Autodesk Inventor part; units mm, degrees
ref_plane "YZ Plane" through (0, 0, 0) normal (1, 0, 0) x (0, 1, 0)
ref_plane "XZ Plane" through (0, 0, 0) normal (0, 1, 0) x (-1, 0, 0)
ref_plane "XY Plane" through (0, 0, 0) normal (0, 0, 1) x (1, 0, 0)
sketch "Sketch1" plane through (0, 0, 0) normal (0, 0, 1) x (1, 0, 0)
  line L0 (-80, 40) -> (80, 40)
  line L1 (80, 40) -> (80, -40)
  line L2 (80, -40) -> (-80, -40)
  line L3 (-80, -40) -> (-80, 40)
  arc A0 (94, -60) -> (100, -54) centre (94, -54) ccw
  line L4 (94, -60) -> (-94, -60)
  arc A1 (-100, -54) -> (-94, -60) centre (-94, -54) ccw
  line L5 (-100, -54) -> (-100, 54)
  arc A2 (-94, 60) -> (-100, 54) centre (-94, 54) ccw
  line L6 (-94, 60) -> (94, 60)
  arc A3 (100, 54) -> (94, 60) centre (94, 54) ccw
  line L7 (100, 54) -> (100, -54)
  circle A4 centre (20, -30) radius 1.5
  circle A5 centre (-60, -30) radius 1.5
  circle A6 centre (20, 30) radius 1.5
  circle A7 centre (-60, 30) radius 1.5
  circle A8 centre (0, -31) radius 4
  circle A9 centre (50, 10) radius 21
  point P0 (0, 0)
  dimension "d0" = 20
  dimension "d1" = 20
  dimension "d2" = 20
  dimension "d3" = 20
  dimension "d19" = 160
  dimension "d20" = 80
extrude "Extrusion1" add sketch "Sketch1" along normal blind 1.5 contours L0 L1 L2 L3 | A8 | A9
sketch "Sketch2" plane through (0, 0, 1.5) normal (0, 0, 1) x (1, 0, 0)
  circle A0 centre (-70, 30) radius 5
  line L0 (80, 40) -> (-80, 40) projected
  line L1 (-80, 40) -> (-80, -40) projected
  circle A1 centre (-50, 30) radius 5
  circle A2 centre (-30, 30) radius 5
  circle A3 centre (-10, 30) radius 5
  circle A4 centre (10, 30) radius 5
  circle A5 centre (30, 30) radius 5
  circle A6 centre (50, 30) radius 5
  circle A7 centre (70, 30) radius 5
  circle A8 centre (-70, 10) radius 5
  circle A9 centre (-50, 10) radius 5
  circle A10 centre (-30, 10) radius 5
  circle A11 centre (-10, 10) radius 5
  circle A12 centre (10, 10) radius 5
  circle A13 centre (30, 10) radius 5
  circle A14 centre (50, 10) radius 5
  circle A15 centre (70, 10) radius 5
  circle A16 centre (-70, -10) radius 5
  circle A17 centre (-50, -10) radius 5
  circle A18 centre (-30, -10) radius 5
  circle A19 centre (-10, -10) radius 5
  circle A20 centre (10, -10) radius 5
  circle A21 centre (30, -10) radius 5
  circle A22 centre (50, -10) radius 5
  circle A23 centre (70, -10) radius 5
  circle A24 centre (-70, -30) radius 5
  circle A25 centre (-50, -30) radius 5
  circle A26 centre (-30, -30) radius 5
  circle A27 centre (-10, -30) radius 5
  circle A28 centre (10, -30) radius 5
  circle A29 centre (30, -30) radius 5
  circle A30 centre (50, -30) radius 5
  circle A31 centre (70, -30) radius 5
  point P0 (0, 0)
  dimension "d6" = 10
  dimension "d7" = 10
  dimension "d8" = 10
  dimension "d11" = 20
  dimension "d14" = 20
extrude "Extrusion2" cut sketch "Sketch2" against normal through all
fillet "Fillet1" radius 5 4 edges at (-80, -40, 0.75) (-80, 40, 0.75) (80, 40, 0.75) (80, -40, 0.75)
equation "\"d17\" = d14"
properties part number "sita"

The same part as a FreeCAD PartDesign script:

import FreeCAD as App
import Part
import Sketcher
Q = App.Units.Quantity


def edges_at(feature, points):
    """Names of the edges that pass closest to the given points."""
    edges = feature.Shape.Edges
    near = lambda p: min(range(len(edges)), key=lambda i: edges[i].distToShape(Part.Vertex(*p))[0])
    return sorted({f"Edge{near(p) + 1}" for p in points})

doc = App.newDocument("Part")
body = doc.addObject("PartDesign::Body", "Body")

# Sketch on XY plane
sketch1 = body.newObject("Sketcher::SketchObject", "Sketch")
sketch1.AttachmentSupport = (doc.getObject("XY_Plane"), [""])
sketch1.MapMode = "FlatFace"
sketch1.addGeometry([
    Part.LineSegment(App.Vector(80, 40, 0), App.Vector(-80, 40, 0)),  # 0
    Part.LineSegment(App.Vector(-80, 40, 0), App.Vector(-80, -40, 0)),  # 1
    Part.LineSegment(App.Vector(-80, -40, 0), App.Vector(80, -40, 0)),  # 2
    Part.LineSegment(App.Vector(80, -40, 0), App.Vector(80, 40, 0)),  # 3
    Part.Circle(App.Vector(-60, -30, 0), App.Vector(0, 0, 1), 1.5),  # 4
    Part.Circle(App.Vector(20, -30, 0), App.Vector(0, 0, 1), 1.5),  # 5
    Part.Circle(App.Vector(-60, 30, 0), App.Vector(0, 0, 1), 1.5),  # 6
    Part.Circle(App.Vector(20, 30, 0), App.Vector(0, 0, 1), 1.5),  # 7
], False)
sketch1.addConstraint([
    Sketcher.Constraint("Coincident", 0, 2, 1, 1),
    Sketcher.Constraint("Coincident", 1, 2, 2, 1),
    Sketcher.Constraint("Coincident", 2, 2, 3, 1),
    Sketcher.Constraint("Coincident", 3, 2, 0, 1),
    Sketcher.Constraint("Horizontal", 0),
    Sketcher.Constraint("Vertical", 1),
    Sketcher.Constraint("Horizontal", 2),
    Sketcher.Constraint("Vertical", 3),
    Sketcher.Constraint("Equal", 4, 5),
    Sketcher.Constraint("Equal", 5, 6),
    Sketcher.Constraint("Equal", 6, 7),
    Sketcher.Constraint("Symmetric", 0, 2, 2, 2, -1, 1),
    Sketcher.Constraint("Symmetric", 4, 3, 6, 3, -1),
    Sketcher.Constraint("Symmetric", 5, 3, 7, 3, -1),
    Sketcher.Constraint("Horizontal", 4, 3, 5, 3),
    Sketcher.Constraint("DistanceX", 0, 2, 0, 1, Q("160 mm")),
    Sketcher.Constraint("DistanceY", 1, 2, 1, 1, Q("80 mm")),
    Sketcher.Constraint("Diameter", 4, Q("3 mm")),
    Sketcher.Constraint("DistanceX", -1, 1, 5, 3, Q("20 mm")),
    Sketcher.Constraint("DistanceX", 4, 3, 5, 3, Q("80 mm")),
    Sketcher.Constraint("DistanceY", 4, 3, -1, 1, Q("30 mm")),
])
pad1 = body.newObject("PartDesign::Pad", "Pad")
pad1.Profile = sketch1
pad1.Length = 1.5

# Sketch on XY plane
sketch2 = body.newObject("Sketcher::SketchObject", "Sketch001")
sketch2.AttachmentSupport = (doc.getObject("XY_Plane"), [""])
sketch2.MapMode = "FlatFace"
sketch2.AttachmentOffset = App.Placement(App.Vector(0, 0, 1.5), App.Rotation())
sketch2.addGeometry([
    Part.Circle(App.Vector(-70, 30, 0), App.Vector(0, 0, 1), 5),  # 0
    Part.Circle(App.Vector(-50, 30, 0), App.Vector(0, 0, 1), 5),  # 1
    Part.Circle(App.Vector(-30, 30, 0), App.Vector(0, 0, 1), 5),  # 2
    Part.Circle(App.Vector(-10, 30, 0), App.Vector(0, 0, 1), 5),  # 3
    Part.Circle(App.Vector(10, 30, 0), App.Vector(0, 0, 1), 5),  # 4
    Part.Circle(App.Vector(30, 30, 0), App.Vector(0, 0, 1), 5),  # 5
    Part.Circle(App.Vector(50, 30, 0), App.Vector(0, 0, 1), 5),  # 6
    Part.Circle(App.Vector(70, 30, 0), App.Vector(0, 0, 1), 5),  # 7
    Part.Circle(App.Vector(-70, 10, 0), App.Vector(0, 0, 1), 5),  # 8
    Part.Circle(App.Vector(-50, 10, 0), App.Vector(0, 0, 1), 5),  # 9
    Part.Circle(App.Vector(-30, 10, 0), App.Vector(0, 0, 1), 5),  # 10
    Part.Circle(App.Vector(-10, 10, 0), App.Vector(0, 0, 1), 5),  # 11
    Part.Circle(App.Vector(10, 10, 0), App.Vector(0, 0, 1), 5),  # 12
    Part.Circle(App.Vector(30, 10, 0), App.Vector(0, 0, 1), 5),  # 13
    Part.Circle(App.Vector(50, 10, 0), App.Vector(0, 0, 1), 5),  # 14
    Part.Circle(App.Vector(70, 10, 0), App.Vector(0, 0, 1), 5),  # 15
    Part.Circle(App.Vector(-70, -10, 0), App.Vector(0, 0, 1), 5),  # 16
    Part.Circle(App.Vector(-50, -10, 0), App.Vector(0, 0, 1), 5),  # 17
    Part.Circle(App.Vector(-30, -10, 0), App.Vector(0, 0, 1), 5),  # 18
    Part.Circle(App.Vector(-10, -10, 0), App.Vector(0, 0, 1), 5),  # 19
    Part.Circle(App.Vector(10, -10, 0), App.Vector(0, 0, 1), 5),  # 20
    Part.Circle(App.Vector(30, -10, 0), App.Vector(0, 0, 1), 5),  # 21
    Part.Circle(App.Vector(50, -10, 0), App.Vector(0, 0, 1), 5),  # 22
    Part.Circle(App.Vector(70, -10, 0), App.Vector(0, 0, 1), 5),  # 23
    Part.Circle(App.Vector(-70, -30, 0), App.Vector(0, 0, 1), 5),  # 24
    Part.Circle(App.Vector(-50, -30, 0), App.Vector(0, 0, 1), 5),  # 25
    Part.Circle(App.Vector(-30, -30, 0), App.Vector(0, 0, 1), 5),  # 26
    Part.Circle(App.Vector(-10, -30, 0), App.Vector(0, 0, 1), 5),  # 27
    Part.Circle(App.Vector(10, -30, 0), App.Vector(0, 0, 1), 5),  # 28
    Part.Circle(App.Vector(30, -30, 0), App.Vector(0, 0, 1), 5),  # 29
    Part.Circle(App.Vector(50, -30, 0), App.Vector(0, 0, 1), 5),  # 30
    Part.Circle(App.Vector(70, -30, 0), App.Vector(0, 0, 1), 5),  # 31
], False)
sketch2.addConstraint([
    Sketcher.Constraint("Equal", 0, 1),
    Sketcher.Constraint("Equal", 1, 2),
    Sketcher.Constraint("Equal", 2, 3),
    Sketcher.Constraint("Equal", 3, 4),
    Sketcher.Constraint("Equal", 4, 5),
    Sketcher.Constraint("Equal", 5, 6),
    Sketcher.Constraint("Equal", 6, 7),
    Sketcher.Constraint("Equal", 7, 8),
    Sketcher.Constraint("Equal", 8, 9),
    Sketcher.Constraint("Equal", 9, 10),
    Sketcher.Constraint("Equal", 10, 11),
    Sketcher.Constraint("Equal", 11, 12),
    Sketcher.Constraint("Equal", 12, 13),
    Sketcher.Constraint("Equal", 13, 14),
    Sketcher.Constraint("Equal", 14, 15),
    Sketcher.Constraint("Equal", 15, 16),
    Sketcher.Constraint("Equal", 16, 17),
    Sketcher.Constraint("Equal", 17, 18),
    Sketcher.Constraint("Equal", 18, 19),
    Sketcher.Constraint("Equal", 19, 20),
    Sketcher.Constraint("Equal", 20, 21),
    Sketcher.Constraint("Equal", 21, 22),
    Sketcher.Constraint("Equal", 22, 23),
    Sketcher.Constraint("Equal", 23, 24),
    Sketcher.Constraint("Equal", 24, 25),
    Sketcher.Constraint("Equal", 25, 26),
    Sketcher.Constraint("Equal", 26, 27),
    Sketcher.Constraint("Equal", 27, 28),
    Sketcher.Constraint("Equal", 28, 29),
    Sketcher.Constraint("Equal", 29, 30),
    Sketcher.Constraint("Equal", 30, 31),
    Sketcher.Constraint("Symmetric", 15, 3, 16, 3, -1, 1),
    Sketcher.Constraint("Symmetric", 14, 3, 17, 3, -1, 1),
    Sketcher.Constraint("Symmetric", 13, 3, 18, 3, -1, 1),
    Sketcher.Constraint("Symmetric", 12, 3, 19, 3, -1, 1),
    Sketcher.Constraint("Symmetric", 11, 3, 20, 3, -1, 1),
    Sketcher.Constraint("Symmetric", 10, 3, 21, 3, -1, 1),
    Sketcher.Constraint("Symmetric", 9, 3, 22, 3, -1, 1),
    Sketcher.Constraint("Symmetric", 8, 3, 23, 3, -1, 1),
    Sketcher.Constraint("Symmetric", 7, 3, 24, 3, -1, 1),
    Sketcher.Constraint("Symmetric", 6, 3, 25, 3, -1, 1),
    Sketcher.Constraint("Symmetric", 5, 3, 26, 3, -1, 1),
    Sketcher.Constraint("Symmetric", 4, 3, 27, 3, -1, 1),
    Sketcher.Constraint("Symmetric", 3, 3, 28, 3, -1, 1),
    Sketcher.Constraint("Symmetric", 2, 3, 29, 3, -1, 1),
    Sketcher.Constraint("Symmetric", 1, 3, 30, 3, -1, 1),
    Sketcher.Constraint("Symmetric", 0, 3, 31, 3, -1, 1),
    Sketcher.Constraint("Symmetric", 3, 3, 4, 3, -2),
    Sketcher.Constraint("Symmetric", 2, 3, 5, 3, -2),
    Sketcher.Constraint("Symmetric", 1, 3, 6, 3, -2),
    Sketcher.Constraint("Symmetric", 0, 3, 7, 3, -2),
    Sketcher.Constraint("Symmetric", 11, 3, 12, 3, -2),
    Sketcher.Constraint("Symmetric", 10, 3, 13, 3, -2),
    Sketcher.Constraint("Symmetric", 9, 3, 14, 3, -2),
    Sketcher.Constraint("Symmetric", 8, 3, 15, 3, -2),
    Sketcher.Constraint("Horizontal", 0, 3, 1, 3),
    Sketcher.Constraint("Horizontal", 1, 3, 2, 3),
    Sketcher.Constraint("Horizontal", 2, 3, 3, 3),
    Sketcher.Constraint("Horizontal", 8, 3, 9, 3),
    Sketcher.Constraint("Horizontal", 9, 3, 10, 3),
    Sketcher.Constraint("Horizontal", 10, 3, 11, 3),
    Sketcher.Constraint("Vertical", 0, 3, 8, 3),
    Sketcher.Constraint("Vertical", 1, 3, 9, 3),
    Sketcher.Constraint("Vertical", 2, 3, 10, 3),
    Sketcher.Constraint("Vertical", 3, 3, 11, 3),
    Sketcher.Constraint("Diameter", 0, Q("10 mm")),
    Sketcher.Constraint("DistanceX", 3, 3, -1, 1, Q("10 mm")),
    Sketcher.Constraint("DistanceY", -1, 1, 8, 3, Q("10 mm")),
    Sketcher.Constraint("DistanceX", 0, 3, 1, 3, Q("20 mm")),
    Sketcher.Constraint("DistanceX", 1, 3, 2, 3, Q("20 mm")),
    Sketcher.Constraint("DistanceX", 2, 3, 3, 3, Q("20 mm")),
    Sketcher.Constraint("DistanceY", 8, 3, 0, 3, Q("20 mm")),
])
pocket1 = body.newObject("PartDesign::Pocket", "Pocket")
pocket1.Profile = sketch2
pocket1.Type = "ThroughAll"
doc.recompute()

fillet = body.newObject("PartDesign::Fillet", "Fillet")
fillet.Base = (pocket1, edges_at(pocket1, [
    (-80, -40, 0.75),
    (-80, 40, 0.75),
    (80, 40, 0.75),
    (80, -40, 0.75),
]))
fillet.Radius = 5

doc.recompute()
